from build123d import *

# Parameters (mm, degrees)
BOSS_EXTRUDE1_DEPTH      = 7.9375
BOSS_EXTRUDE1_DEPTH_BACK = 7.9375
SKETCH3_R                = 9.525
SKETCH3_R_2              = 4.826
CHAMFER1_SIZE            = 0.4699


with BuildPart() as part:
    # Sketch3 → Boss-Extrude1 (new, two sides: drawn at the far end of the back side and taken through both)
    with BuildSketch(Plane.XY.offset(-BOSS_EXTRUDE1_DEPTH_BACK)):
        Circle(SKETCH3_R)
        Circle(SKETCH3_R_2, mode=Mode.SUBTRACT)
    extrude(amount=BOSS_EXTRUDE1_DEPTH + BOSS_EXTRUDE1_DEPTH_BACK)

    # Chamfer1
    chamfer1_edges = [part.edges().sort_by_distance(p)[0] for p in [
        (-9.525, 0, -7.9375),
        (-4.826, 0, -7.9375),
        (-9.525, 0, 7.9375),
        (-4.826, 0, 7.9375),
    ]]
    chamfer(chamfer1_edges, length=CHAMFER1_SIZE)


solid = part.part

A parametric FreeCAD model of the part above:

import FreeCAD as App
import Part
import Sketcher
Q = App.Units.Quantity


def edges_at(feature, points):
    """Names of the edges that pass closest to the given points."""
    edges = feature.Shape.Edges
    near = lambda p: min(range(len(edges)), key=lambda i: edges[i].distToShape(Part.Vertex(*p))[0])
    return sorted({f"Edge{near(p) + 1}" for p in points})

doc = App.newDocument("Part")
body = doc.addObject("PartDesign::Body", "Body")

sketch1 = body.newObject("Sketcher::SketchObject", "Sketch")
sketch1.AttachmentSupport = (doc.getObject("XY_Plane"), [""])
sketch1.MapMode = "FlatFace"
sketch1.addGeometry([
    Part.Circle(App.Vector(0, 0, 0), App.Vector(0, 0, 1), 9.5),
    Part.Circle(App.Vector(0, 0, 0), App.Vector(0, 0, 1), 4.8),
], False)
sketch1.addConstraint([
    Sketcher.Constraint("Coincident", 0, 3, -1, 1),
    Sketcher.Constraint("Coincident", 1, 3, -1, 1),
    Sketcher.Constraint("Diameter", 0, Q("0.75 in")),
    Sketcher.Constraint("Diameter", 1, Q("0.38 in")),
])
pad1 = body.newObject("PartDesign::Pad", "Pad")
pad1.Profile = sketch1
pad1.Type = "TwoLengths"
pad1.Length = Q("0.3125 in")
pad1.Length2 = Q("0.3125 in")
doc.recompute()

chamfer = body.newObject("PartDesign::Chamfer", "Chamfer")
chamfer.Base = (pad1, edges_at(pad1, [
    (-9.525, 0, -7.938),
    (-4.826, 0, -7.938),
    (-9.525, 0, 7.938),
    (-4.826, 0, 7.938),
]))
chamfer.Size = Q("0.0185 in")

doc.recompute()
